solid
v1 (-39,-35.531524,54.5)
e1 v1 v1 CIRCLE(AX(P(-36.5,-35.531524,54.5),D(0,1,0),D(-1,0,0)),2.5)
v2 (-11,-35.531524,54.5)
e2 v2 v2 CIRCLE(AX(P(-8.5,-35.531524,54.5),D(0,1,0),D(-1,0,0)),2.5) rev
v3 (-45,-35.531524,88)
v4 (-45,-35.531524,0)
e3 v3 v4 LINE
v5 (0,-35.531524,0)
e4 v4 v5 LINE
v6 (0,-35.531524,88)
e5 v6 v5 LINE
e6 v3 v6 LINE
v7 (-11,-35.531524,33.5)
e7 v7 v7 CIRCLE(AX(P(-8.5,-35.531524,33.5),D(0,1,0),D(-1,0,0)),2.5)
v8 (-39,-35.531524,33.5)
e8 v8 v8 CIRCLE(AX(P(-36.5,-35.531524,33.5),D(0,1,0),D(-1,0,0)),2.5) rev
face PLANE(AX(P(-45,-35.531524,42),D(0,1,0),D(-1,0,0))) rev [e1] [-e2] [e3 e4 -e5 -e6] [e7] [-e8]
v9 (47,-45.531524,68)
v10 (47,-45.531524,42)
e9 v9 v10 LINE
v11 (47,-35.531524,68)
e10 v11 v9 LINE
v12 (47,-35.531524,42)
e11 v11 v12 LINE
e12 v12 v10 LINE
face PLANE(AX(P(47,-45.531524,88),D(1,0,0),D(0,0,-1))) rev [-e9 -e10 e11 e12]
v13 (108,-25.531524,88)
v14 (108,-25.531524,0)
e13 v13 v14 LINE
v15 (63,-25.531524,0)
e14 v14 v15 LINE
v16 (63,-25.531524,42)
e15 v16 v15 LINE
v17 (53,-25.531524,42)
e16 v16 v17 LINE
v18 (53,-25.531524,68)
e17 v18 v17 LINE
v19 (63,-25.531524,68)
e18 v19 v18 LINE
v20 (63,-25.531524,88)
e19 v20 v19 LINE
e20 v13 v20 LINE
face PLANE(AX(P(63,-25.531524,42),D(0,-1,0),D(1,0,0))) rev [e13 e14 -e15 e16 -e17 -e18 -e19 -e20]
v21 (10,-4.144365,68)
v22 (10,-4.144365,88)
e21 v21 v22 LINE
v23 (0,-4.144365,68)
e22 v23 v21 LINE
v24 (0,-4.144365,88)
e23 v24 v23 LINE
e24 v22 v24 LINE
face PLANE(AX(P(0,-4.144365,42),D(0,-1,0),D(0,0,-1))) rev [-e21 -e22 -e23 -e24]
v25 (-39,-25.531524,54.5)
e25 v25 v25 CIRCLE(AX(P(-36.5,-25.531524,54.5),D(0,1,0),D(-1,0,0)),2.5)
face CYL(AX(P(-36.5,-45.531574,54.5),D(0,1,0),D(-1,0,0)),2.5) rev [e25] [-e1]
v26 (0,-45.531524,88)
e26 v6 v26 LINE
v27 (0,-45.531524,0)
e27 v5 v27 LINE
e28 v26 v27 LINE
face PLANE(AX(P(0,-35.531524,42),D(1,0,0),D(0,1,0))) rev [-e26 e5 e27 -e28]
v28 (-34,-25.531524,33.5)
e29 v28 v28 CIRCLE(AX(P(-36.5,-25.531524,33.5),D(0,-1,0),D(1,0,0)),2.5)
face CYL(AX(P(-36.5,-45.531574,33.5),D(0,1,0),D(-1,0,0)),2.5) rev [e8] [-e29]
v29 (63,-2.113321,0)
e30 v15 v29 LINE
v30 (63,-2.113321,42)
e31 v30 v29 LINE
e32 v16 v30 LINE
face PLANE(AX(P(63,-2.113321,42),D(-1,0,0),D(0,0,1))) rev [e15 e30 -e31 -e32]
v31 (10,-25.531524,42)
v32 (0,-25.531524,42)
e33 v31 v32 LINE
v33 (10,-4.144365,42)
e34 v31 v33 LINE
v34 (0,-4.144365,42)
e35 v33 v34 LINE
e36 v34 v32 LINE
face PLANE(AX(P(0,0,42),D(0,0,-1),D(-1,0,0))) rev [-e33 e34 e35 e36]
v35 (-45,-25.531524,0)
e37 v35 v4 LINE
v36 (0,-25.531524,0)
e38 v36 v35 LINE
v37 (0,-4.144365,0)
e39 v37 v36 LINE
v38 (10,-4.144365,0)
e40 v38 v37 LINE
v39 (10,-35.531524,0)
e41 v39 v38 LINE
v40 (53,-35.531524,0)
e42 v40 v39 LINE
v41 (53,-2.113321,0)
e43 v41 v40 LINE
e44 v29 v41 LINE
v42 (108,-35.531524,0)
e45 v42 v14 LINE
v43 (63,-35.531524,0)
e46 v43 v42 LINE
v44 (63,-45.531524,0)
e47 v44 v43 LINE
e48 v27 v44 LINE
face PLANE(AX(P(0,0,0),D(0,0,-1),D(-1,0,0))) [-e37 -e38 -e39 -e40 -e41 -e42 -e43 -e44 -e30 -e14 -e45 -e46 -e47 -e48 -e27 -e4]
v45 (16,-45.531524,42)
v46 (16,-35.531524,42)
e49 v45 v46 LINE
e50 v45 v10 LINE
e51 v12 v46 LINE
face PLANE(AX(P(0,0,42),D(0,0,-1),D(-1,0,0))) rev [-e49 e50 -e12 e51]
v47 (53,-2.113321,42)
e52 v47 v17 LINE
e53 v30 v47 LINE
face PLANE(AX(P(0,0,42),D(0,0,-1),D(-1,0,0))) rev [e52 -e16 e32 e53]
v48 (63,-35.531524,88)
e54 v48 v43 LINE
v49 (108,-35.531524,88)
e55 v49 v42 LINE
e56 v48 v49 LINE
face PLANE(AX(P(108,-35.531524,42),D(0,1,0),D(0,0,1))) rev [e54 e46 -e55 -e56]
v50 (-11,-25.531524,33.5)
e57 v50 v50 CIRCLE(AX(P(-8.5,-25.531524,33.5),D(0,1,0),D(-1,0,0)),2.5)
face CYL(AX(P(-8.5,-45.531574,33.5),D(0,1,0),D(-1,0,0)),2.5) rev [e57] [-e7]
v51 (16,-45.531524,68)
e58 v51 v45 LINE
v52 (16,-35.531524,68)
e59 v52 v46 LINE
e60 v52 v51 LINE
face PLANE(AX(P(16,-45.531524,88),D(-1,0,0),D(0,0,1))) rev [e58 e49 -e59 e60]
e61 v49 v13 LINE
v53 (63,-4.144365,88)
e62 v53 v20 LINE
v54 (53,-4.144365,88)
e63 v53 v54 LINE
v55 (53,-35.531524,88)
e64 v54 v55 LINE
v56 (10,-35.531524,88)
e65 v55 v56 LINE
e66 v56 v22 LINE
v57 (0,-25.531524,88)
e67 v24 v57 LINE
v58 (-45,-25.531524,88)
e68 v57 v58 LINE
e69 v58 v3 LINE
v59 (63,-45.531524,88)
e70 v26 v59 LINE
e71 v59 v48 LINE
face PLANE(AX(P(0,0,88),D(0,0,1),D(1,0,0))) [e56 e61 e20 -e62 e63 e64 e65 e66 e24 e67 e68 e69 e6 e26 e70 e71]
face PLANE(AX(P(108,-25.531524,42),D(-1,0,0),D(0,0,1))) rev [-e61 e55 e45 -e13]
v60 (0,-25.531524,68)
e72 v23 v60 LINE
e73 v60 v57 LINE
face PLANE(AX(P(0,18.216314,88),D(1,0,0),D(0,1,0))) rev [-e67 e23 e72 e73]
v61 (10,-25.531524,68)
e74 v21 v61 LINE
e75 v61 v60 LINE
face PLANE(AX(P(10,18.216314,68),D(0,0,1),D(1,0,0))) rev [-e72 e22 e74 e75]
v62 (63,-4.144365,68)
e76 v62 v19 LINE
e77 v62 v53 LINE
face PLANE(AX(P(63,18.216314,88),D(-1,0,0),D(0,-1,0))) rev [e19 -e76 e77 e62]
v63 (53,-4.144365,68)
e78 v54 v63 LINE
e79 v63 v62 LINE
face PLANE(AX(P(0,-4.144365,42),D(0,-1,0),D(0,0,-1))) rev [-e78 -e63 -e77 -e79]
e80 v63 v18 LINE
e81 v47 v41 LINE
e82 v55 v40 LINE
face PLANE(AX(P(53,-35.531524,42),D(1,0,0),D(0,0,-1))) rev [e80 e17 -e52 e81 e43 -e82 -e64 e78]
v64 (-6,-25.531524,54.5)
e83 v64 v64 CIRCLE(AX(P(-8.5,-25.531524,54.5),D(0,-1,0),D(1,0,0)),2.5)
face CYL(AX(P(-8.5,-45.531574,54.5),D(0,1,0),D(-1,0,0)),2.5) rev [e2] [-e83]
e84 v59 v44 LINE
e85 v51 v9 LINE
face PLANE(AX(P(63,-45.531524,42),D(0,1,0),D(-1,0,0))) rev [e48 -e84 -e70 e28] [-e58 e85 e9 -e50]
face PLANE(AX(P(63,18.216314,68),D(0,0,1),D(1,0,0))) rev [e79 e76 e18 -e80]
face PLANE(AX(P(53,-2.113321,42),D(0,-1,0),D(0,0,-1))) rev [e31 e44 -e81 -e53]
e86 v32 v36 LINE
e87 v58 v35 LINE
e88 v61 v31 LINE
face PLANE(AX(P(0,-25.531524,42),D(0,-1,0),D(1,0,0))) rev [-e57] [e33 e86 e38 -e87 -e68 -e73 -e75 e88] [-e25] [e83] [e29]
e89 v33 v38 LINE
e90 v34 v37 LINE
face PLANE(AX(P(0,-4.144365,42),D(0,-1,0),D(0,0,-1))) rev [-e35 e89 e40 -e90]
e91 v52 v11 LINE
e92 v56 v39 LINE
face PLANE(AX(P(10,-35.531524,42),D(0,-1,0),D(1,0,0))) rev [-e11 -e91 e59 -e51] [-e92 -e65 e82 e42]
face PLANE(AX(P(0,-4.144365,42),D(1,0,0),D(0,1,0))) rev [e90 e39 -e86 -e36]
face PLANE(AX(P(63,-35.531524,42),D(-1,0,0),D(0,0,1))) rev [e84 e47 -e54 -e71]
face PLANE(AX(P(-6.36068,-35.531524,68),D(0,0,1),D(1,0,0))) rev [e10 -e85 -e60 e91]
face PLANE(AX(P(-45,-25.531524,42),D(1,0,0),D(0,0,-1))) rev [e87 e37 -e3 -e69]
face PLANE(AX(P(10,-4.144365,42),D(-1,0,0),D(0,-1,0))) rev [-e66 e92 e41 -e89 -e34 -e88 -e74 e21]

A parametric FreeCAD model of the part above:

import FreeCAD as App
import Part
import Sketcher
from FreeCAD import Vector


def add_polygon(sketch, points):
    """Adds a closed chain of lines whose ends are joined by coincident constraints."""
    first, n = sketch.GeometryCount, len(points)
    for a, b in zip(points, points[1:] + points[:1]):
        sketch.addGeometry(Part.LineSegment(App.Vector(*a, 0), App.Vector(*b, 0)), False)
    for i in range(n):
        sketch.addConstraint(Sketcher.Constraint("Coincident", first + i, 2, first + (i + 1) % n, 1))

doc = App.newDocument("Part")
body = doc.addObject("PartDesign::Body", "Body")

sketch1 = body.newObject("Sketcher::SketchObject", "Sketch")
sketch1.AttachmentSupport = (doc.getObject("XY_Plane"), [""])
sketch1.MapMode = "FlatFace"
add_polygon(sketch1, [(10, -4.144365), (0, -4.144365), (0, -25.531524), (-45, -25.531524), (-45, -35.531524), (0, -35.531524), (0, -45.531524), (63, -45.531524), (63, -35.531524), (108, -35.531524), (108, -25.531524), (63, -25.531524), (63, -2.113321), (53, -2.113321), (53, -35.531524), (10, -35.531524)])
sketch1.addConstraint([
    Sketcher.Constraint("Horizontal", 0),
    Sketcher.Constraint("Vertical", 1),
    Sketcher.Constraint("Horizontal", 2),
    Sketcher.Constraint("Vertical", 3),
    Sketcher.Constraint("Horizontal", 4),
    Sketcher.Constraint("Vertical", 5),
    Sketcher.Constraint("Horizontal", 6),
    Sketcher.Constraint("Vertical", 7),
    Sketcher.Constraint("Horizontal", 8),
    Sketcher.Constraint("Vertical", 9),
    Sketcher.Constraint("Horizontal", 10),
    Sketcher.Constraint("Vertical", 11),
    Sketcher.Constraint("Horizontal", 12),
    Sketcher.Constraint("Vertical", 13),
    Sketcher.Constraint("Horizontal", 14),
    Sketcher.Constraint("Vertical", 15),
    Sketcher.Constraint("PointOnObject", 0, 2, -2),
    Sketcher.Constraint("PointOnObject", 4, 2, -2),
    Sketcher.Constraint("Horizontal", 4, 2, 7, 2),
    Sketcher.Constraint("Horizontal", 2, 2, 9, 2),
    Sketcher.Constraint("Horizontal", 8, 2, 13, 2),
    Sketcher.Constraint("Vertical", 7, 2, 10, 2),
    Sketcher.Constraint("Equal", 4, 8),
    Sketcher.Constraint("Equal", 0, 12),
    Sketcher.Constraint("Equal", 12, 3),
    Sketcher.Constraint("Equal", 3, 5),
    Sketcher.Constraint("DistanceX", 0, 2, 0, 1, 10.0),
    Sketcher.Constraint("DistanceX", 2, 2, 2, 1, 45.0),
    Sketcher.Constraint("DistanceX", 6, 1, 6, 2, 63.0),
    Sketcher.Constraint("DistanceY", 1, 2, 1, 1, 21.387158),
    Sketcher.Constraint("DistanceY", 11, 1, 11, 2, 23.418202),
    Sketcher.Constraint("DistanceY", 11, 2, -1, 1, 2.113321),
])
pad1 = body.newObject("PartDesign::Pad", "Pad")
pad1.Profile = sketch1
pad1.Length = 42

sketch2 = body.newObject("Sketcher::SketchObject", "Sketch001")
sketch2.AttachmentSupport = (doc.getObject("XY_Plane"), [""])
sketch2.MapMode = "FlatFace"
sketch2.AttachmentOffset = App.Placement(Vector(0, 0, 42), App.Rotation())
add_polygon(sketch2, [(10, -25.531524), (-45, -25.531524), (-45, -35.531524), (0, -35.531524), (0, -45.531524), (16, -45.531524), (16, -35.531524), (10, -35.531524)])
add_polygon(sketch2, [(108, -25.531524), (53, -25.531524), (53, -35.531524), (47, -35.531524), (47, -45.531524), (63, -45.531524), (63, -35.531524), (108, -35.531524)])
sketch2.addConstraint([
    Sketcher.Constraint("Horizontal", 0),
    Sketcher.Constraint("Vertical", 1),
    Sketcher.Constraint("Horizontal", 2),
    Sketcher.Constraint("Vertical", 3),
    Sketcher.Constraint("Horizontal", 4),
    Sketcher.Constraint("Vertical", 5),
    Sketcher.Constraint("Horizontal", 6),
    Sketcher.Constraint("Vertical", 7),
    Sketcher.Constraint("Horizontal", 8),
    Sketcher.Constraint("Vertical", 9),
    Sketcher.Constraint("Horizontal", 10),
    Sketcher.Constraint("Vertical", 11),
    Sketcher.Constraint("Horizontal", 12),
    Sketcher.Constraint("Vertical", 13),
    Sketcher.Constraint("Horizontal", 14),
    Sketcher.Constraint("Vertical", 15),
    Sketcher.Constraint("PointOnObject", 2, 2, -2),
    Sketcher.Constraint("Horizontal", 2, 2, 5, 2),
    Sketcher.Constraint("Horizontal", 7, 2, 8, 2),
    Sketcher.Constraint("Horizontal", 6, 2, 9, 2),
    Sketcher.Constraint("Horizontal", 4, 2, 11, 2),
    Sketcher.Constraint("Horizontal", 10, 2, 13, 2),
    Sketcher.Constraint("Equal", 0, 8),
    Sketcher.Constraint("Equal", 6, 10),
    Sketcher.Constraint("Equal", 4, 12),
    Sketcher.Constraint("Equal", 1, 3),
    Sketcher.Constraint("DistanceX", 0, 2, 0, 1, 55.0),
    Sketcher.Constraint("DistanceX", 2, 1, 2, 2, 45.0),
    Sketcher.Constraint("DistanceX", 4, 1, 4, 2, 16.0),
    Sketcher.Constraint("DistanceY", 1, 2, 1, 1, 10.0),
    Sketcher.Constraint("DistanceX", -1, 1, 8, 2, 53.0),
    Sketcher.Constraint("DistanceY", 0, 2, -1, 1, 25.531524),
])
pad2 = body.newObject("PartDesign::Pad", "Pad001")
pad2.Profile = sketch2
pad2.Length = 46

sketch3 = body.newObject("Sketcher::SketchObject", "Sketch002")
sketch3.AttachmentSupport = (doc.getObject("YZ_Plane"), [""])
sketch3.MapMode = "FlatFace"
sketch3.AttachmentOffset = App.Placement(Vector(0, 0, 47), App.Rotation())
add_polygon(sketch3, [(-35.531524, 68), (-45.531524, 68), (-45.531524, 88), (-35.531524, 88)])
sketch3.addConstraint([
    Sketcher.Constraint("Horizontal", 0),
    Sketcher.Constraint("Vertical", 1),
    Sketcher.Constraint("Horizontal", 2),
    Sketcher.Constraint("Vertical", 3),
    Sketcher.Constraint("DistanceX", 0, 2, 0, 1, 10.0),
    Sketcher.Constraint("DistanceY", 1, 1, 1, 2, 20.0),
    Sketcher.Constraint("DistanceY", -1, 1, 0, 2, 68.0),
    Sketcher.Constraint("DistanceX", 0, 2, -1, 1, 45.531524),
])
pad3 = body.newObject("PartDesign::Pad", "Pad002")
pad3.Profile = sketch3
pad3.Length = 31
pad3.Reversed = True

sketch4 = body.newObject("Sketcher::SketchObject", "Sketch003")
sketch4.AttachmentSupport = (doc.getObject("XZ_Plane"), [""])
sketch4.MapMode = "FlatFace"
sketch4.AttachmentOffset = App.Placement(Vector(0, 0, 25.531524), App.Rotation())
add_polygon(sketch4, [(0, 68), (0, 88), (10, 88), (10, 68)])
add_polygon(sketch4, [(53, 68), (53, 88), (63, 88), (63, 68)])
sketch4.addConstraint([
    Sketcher.Constraint("Vertical", 0),
    Sketcher.Constraint("Horizontal", 1),
    Sketcher.Constraint("Vertical", 2),
    Sketcher.Constraint("Horizontal", 3),
    Sketcher.Constraint("Vertical", 4),
    Sketcher.Constraint("Horizontal", 5),
    Sketcher.Constraint("Vertical", 6),
    Sketcher.Constraint("Horizontal", 7),
    Sketcher.Constraint("PointOnObject", 0, 2, -2),
    Sketcher.Constraint("Horizontal", 1, 2, 4, 2),
    Sketcher.Constraint("Horizontal", 3, 2, 6, 2),
    Sketcher.Constraint("Equal", 3, 5),
    Sketcher.Constraint("DistanceX", 1, 1, 1, 2, 10.0),
    Sketcher.Constraint("DistanceY", 0, 1, 0, 2, 20.0),
    Sketcher.Constraint("DistanceY", -1, 1, 0, 2, 88.0),
    Sketcher.Constraint("DistanceX", -1, 1, 4, 2, 53.0),
])
pad4 = body.newObject("PartDesign::Pad", "Pad003")
pad4.Profile = sketch4
pad4.Length = 21.387158
pad4.Reversed = True

sketch5 = body.newObject("Sketcher::SketchObject", "Sketch004")
sketch5.AttachmentSupport = (doc.getObject("XZ_Plane"), [""])
sketch5.MapMode = "FlatFace"
sketch5.AttachmentOffset = App.Placement(Vector(0, 0, 25.531524), App.Rotation())
sketch5.addGeometry([
    Part.Circle(Vector(-36.5, 54.5, 0), Vector(0, 0, 1), 2.5),
    Part.Circle(Vector(-8.5, 54.5, 0), Vector(0, 0, 1), 2.5),
    Part.Circle(Vector(-36.5, 33.5, 0), Vector(0, 0, 1), 2.5),
    Part.Circle(Vector(-8.5, 33.5, 0), Vector(0, 0, 1), 2.5),
], False)
sketch5.addConstraint([
    Sketcher.Constraint("Equal", 0, 1),
    Sketcher.Constraint("Equal", 1, 2),
    Sketcher.Constraint("Equal", 2, 3),
    Sketcher.Constraint("Horizontal", 0, 3, 1, 3),
    Sketcher.Constraint("Horizontal", 2, 3, 3, 3),
    Sketcher.Constraint("Vertical", 0, 3, 2, 3),
    Sketcher.Constraint("Vertical", 1, 3, 3, 3),
    Sketcher.Constraint("Diameter", 0, 5.0),
    Sketcher.Constraint("DistanceX", 0, 3, 1, 3, 28.0),
    Sketcher.Constraint("DistanceY", 2, 3, 0, 3, 21.0),
    Sketcher.Constraint("DistanceX", 0, 3, -1, 1, 36.5),
    Sketcher.Constraint("DistanceY", -1, 1, 0, 3, 54.5),
])
pocket1 = body.newObject("PartDesign::Pocket", "Pocket")
pocket1.Profile = sketch5
pocket1.Type = "ThroughAll"
pocket1.Reversed = True

doc.recompute()
